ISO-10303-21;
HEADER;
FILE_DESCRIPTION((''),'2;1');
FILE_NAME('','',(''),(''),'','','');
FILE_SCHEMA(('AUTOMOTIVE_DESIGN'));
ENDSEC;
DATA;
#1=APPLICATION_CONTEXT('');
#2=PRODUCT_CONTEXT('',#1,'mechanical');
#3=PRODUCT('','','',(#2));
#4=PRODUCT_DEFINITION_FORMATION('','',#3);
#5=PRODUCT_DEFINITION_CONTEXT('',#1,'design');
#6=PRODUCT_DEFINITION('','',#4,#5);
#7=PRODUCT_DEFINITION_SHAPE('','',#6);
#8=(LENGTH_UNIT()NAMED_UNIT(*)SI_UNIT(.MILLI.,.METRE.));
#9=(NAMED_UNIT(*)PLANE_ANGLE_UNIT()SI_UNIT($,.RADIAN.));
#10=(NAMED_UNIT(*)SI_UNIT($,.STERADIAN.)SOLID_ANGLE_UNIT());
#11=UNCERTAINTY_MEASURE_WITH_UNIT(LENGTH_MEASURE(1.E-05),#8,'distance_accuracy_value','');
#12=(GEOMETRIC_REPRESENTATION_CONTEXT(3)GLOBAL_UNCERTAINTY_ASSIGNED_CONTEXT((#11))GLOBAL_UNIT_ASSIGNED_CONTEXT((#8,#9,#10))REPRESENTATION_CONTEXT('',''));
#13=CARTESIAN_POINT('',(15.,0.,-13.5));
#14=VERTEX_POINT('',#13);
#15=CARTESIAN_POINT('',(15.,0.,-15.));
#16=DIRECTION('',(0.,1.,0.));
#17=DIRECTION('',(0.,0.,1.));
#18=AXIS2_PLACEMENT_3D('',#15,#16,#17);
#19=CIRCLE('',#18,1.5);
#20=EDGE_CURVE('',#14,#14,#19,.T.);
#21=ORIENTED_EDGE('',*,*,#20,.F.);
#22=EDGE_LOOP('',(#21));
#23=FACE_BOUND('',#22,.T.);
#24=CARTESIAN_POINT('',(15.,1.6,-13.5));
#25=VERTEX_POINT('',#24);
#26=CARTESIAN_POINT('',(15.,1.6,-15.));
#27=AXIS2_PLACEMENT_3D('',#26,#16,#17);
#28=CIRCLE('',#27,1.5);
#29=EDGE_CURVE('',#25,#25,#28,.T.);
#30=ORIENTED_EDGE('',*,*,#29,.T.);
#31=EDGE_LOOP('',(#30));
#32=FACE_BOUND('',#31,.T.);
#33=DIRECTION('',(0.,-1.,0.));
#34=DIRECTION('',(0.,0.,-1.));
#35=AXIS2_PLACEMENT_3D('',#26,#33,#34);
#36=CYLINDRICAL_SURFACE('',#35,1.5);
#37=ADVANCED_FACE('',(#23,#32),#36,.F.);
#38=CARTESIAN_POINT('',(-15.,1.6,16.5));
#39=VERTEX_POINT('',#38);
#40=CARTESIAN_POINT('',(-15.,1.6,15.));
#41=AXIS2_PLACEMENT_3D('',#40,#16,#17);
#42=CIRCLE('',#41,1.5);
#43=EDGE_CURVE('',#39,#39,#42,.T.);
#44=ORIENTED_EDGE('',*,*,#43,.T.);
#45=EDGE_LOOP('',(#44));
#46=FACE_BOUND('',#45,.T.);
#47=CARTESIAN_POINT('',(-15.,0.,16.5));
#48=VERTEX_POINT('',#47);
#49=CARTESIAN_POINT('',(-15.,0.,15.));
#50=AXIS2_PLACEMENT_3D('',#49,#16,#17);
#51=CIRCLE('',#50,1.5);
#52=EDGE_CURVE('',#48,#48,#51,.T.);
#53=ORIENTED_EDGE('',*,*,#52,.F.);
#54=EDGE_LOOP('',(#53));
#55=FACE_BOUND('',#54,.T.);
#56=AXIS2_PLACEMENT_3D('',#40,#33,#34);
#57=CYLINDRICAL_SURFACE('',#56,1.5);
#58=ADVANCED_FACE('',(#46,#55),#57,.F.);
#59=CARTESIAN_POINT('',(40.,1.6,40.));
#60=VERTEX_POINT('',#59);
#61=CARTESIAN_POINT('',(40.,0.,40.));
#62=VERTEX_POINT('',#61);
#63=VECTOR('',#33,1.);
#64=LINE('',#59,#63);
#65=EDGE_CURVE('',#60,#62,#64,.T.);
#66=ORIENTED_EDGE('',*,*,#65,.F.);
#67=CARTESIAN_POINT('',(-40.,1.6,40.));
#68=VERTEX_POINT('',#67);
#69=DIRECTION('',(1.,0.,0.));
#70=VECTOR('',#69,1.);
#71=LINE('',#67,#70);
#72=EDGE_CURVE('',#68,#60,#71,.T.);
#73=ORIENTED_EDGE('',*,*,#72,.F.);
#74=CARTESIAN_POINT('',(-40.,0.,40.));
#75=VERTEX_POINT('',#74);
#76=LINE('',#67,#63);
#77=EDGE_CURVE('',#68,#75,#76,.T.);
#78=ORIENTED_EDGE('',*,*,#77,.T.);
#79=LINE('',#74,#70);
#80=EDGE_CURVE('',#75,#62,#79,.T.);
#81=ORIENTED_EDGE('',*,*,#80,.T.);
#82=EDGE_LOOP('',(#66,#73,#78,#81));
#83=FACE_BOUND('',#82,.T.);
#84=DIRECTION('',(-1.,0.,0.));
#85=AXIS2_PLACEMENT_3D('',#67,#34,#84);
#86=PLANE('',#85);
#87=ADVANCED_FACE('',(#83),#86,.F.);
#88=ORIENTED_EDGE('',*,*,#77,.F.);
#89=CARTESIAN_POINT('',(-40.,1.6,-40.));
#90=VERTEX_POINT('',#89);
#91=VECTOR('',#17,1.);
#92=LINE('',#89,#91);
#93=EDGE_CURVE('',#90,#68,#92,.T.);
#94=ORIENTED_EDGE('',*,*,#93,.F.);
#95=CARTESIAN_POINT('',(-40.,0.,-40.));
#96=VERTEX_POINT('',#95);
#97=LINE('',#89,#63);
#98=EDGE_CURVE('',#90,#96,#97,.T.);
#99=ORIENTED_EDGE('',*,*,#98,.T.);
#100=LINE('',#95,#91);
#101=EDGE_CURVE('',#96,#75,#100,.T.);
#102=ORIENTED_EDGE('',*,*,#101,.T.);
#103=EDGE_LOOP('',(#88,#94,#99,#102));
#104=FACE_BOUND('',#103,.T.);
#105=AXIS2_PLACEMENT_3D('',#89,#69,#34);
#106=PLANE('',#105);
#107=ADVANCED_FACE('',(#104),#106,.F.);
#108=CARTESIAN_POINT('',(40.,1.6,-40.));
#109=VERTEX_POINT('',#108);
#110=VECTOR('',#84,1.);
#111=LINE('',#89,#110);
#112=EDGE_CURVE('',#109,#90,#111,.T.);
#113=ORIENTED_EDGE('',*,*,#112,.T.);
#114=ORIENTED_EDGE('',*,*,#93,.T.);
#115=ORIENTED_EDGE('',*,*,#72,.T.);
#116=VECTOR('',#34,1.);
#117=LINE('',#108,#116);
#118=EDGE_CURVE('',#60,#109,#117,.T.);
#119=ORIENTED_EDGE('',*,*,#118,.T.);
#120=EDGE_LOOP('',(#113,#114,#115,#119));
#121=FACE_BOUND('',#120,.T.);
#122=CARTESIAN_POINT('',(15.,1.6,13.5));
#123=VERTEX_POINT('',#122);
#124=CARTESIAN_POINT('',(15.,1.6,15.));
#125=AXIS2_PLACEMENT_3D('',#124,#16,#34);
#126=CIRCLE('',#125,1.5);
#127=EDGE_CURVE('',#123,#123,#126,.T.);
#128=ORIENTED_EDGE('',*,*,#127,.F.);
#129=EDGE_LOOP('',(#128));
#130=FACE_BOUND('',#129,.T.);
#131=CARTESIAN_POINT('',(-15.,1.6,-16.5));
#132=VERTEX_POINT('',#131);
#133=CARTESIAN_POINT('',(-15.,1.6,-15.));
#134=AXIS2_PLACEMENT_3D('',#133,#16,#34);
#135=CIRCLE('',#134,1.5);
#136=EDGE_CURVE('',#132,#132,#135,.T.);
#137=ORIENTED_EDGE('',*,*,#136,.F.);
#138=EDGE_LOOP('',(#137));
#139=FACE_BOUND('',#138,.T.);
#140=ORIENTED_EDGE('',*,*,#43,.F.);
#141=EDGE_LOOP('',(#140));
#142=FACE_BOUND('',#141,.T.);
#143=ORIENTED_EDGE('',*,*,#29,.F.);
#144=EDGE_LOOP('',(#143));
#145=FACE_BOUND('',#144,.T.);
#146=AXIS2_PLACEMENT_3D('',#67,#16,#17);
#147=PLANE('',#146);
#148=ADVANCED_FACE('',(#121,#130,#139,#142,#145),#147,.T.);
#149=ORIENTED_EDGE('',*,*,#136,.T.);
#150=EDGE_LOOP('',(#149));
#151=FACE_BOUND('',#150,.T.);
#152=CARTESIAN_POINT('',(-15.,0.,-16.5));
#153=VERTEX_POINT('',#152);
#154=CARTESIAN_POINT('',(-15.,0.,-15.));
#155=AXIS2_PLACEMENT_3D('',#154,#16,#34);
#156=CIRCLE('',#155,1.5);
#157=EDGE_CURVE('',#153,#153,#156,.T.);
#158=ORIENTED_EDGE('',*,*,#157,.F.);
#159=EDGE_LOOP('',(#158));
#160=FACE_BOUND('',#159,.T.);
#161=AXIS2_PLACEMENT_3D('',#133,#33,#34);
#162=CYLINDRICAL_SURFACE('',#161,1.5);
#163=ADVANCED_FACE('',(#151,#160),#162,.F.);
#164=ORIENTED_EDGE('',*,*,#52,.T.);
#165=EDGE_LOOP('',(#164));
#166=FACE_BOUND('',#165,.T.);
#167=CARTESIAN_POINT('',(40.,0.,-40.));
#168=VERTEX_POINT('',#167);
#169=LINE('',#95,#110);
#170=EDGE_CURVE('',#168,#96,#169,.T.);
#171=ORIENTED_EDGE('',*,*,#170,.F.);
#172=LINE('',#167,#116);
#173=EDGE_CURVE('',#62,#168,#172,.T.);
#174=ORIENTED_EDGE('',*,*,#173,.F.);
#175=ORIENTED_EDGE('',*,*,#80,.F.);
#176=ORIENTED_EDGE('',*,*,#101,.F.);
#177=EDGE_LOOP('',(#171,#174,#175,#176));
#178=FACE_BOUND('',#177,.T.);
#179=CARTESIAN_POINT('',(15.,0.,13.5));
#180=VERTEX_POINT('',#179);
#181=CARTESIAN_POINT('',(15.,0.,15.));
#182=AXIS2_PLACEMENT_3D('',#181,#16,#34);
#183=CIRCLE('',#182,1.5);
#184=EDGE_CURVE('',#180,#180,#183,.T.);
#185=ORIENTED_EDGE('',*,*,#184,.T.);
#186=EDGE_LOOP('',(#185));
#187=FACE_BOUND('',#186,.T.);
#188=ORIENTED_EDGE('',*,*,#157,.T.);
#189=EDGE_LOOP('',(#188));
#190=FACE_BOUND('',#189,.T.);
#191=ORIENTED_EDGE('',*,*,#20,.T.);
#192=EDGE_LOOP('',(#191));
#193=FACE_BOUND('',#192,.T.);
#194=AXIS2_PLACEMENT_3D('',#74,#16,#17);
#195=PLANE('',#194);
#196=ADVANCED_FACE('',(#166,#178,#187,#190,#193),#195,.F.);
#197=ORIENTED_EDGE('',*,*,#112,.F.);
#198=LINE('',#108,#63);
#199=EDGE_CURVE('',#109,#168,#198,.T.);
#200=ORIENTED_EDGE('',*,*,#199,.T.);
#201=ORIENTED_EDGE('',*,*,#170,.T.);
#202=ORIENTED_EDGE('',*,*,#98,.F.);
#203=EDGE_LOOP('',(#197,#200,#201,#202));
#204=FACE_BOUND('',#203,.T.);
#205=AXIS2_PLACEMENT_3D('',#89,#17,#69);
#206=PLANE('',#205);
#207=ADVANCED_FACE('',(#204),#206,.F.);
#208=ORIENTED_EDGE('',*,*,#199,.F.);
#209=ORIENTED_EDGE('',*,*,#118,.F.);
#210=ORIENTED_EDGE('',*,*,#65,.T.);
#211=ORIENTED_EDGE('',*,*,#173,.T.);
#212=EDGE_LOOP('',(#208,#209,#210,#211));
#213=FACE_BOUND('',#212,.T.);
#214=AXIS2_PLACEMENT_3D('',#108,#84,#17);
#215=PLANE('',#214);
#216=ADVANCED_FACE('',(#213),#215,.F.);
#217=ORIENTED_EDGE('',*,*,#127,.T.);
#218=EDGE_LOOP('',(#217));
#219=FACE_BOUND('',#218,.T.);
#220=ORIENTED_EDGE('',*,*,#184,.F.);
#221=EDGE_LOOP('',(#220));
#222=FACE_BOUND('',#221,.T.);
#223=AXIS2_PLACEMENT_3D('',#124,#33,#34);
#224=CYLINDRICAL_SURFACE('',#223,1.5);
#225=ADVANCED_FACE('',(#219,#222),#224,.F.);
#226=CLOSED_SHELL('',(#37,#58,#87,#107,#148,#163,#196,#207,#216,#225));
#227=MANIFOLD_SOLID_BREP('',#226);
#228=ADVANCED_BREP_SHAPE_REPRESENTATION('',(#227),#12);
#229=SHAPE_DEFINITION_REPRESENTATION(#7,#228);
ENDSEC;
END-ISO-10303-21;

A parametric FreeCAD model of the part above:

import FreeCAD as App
import Part
import Sketcher

V = App.Vector


def add_polygon(sketch, points):
    """Adds a closed chain of lines whose ends are joined by coincident constraints."""
    first, n = sketch.GeometryCount, len(points)
    for a, b in zip(points, points[1:] + points[:1]):
        sketch.addGeometry(Part.LineSegment(App.Vector(*a, 0), App.Vector(*b, 0)), False)
    for i in range(n):
        sketch.addConstraint(Sketcher.Constraint("Coincident", first + i, 2, first + (i + 1) % n, 1))

doc = App.newDocument("Part")
body = doc.addObject("PartDesign::Body", "Body")

# Sketch on XZ plane
sketch1 = body.newObject("Sketcher::SketchObject", "Sketch")
sketch1.AttachmentSupport = (doc.getObject("XZ_Plane"), [""])
sketch1.MapMode = "FlatFace"
add_polygon(sketch1, [(-40, -40), (-40, 40), (40, 40), (40, -40)])  # lines 0-3
sketch1.addGeometry(Part.Circle(V(-15, 15, 0), V(0, 0, 1), 1.5), False)  # 4
sketch1.addGeometry(Part.Circle(V(15, 15, 0), V(0, 0, 1), 1.5), False)  # 5
sketch1.addGeometry(Part.Circle(V(-15, -15, 0), V(0, 0, 1), 1.5), False)  # 6
sketch1.addGeometry(Part.Circle(V(15, -15, 0), V(0, 0, 1), 1.5), False)  # 7
sketch1.addConstraint(Sketcher.Constraint("Vertical", 0))
sketch1.addConstraint(Sketcher.Constraint("Horizontal", 1))
sketch1.addConstraint(Sketcher.Constraint("Vertical", 2))
sketch1.addConstraint(Sketcher.Constraint("Horizontal", 3))
sketch1.addConstraint(Sketcher.Constraint("Equal", 4, 5))
sketch1.addConstraint(Sketcher.Constraint("Equal", 5, 6))
sketch1.addConstraint(Sketcher.Constraint("Equal", 6, 7))
sketch1.addConstraint(Sketcher.Constraint("Symmetric", 5, 3, 6, 3, -1, 1))
sketch1.addConstraint(Sketcher.Constraint("Symmetric", 4, 3, 7, 3, -1, 1))
sketch1.addConstraint(Sketcher.Constraint("Symmetric", 0, 2, 2, 2, -1, 1))
sketch1.addConstraint(Sketcher.Constraint("Symmetric", 4, 3, 5, 3, -2))
sketch1.addConstraint(Sketcher.Constraint("Equal", 3, 0))
sketch1.addConstraint(Sketcher.Constraint("Diameter", 4, 3.0))
sketch1.addConstraint(Sketcher.Constraint("DistanceX", 1, 1, 1, 2, 80.0))
sketch1.addConstraint(Sketcher.Constraint("DistanceX", 4, 3, -1, 1, 15.0))
sketch1.addConstraint(Sketcher.Constraint("DistanceY", -1, 1, 4, 3, 15.0))
pad1 = body.newObject("PartDesign::Pad", "Pad")
pad1.Profile = sketch1
pad1.Length = 1.6
pad1.Reversed = True

doc.recompute()
